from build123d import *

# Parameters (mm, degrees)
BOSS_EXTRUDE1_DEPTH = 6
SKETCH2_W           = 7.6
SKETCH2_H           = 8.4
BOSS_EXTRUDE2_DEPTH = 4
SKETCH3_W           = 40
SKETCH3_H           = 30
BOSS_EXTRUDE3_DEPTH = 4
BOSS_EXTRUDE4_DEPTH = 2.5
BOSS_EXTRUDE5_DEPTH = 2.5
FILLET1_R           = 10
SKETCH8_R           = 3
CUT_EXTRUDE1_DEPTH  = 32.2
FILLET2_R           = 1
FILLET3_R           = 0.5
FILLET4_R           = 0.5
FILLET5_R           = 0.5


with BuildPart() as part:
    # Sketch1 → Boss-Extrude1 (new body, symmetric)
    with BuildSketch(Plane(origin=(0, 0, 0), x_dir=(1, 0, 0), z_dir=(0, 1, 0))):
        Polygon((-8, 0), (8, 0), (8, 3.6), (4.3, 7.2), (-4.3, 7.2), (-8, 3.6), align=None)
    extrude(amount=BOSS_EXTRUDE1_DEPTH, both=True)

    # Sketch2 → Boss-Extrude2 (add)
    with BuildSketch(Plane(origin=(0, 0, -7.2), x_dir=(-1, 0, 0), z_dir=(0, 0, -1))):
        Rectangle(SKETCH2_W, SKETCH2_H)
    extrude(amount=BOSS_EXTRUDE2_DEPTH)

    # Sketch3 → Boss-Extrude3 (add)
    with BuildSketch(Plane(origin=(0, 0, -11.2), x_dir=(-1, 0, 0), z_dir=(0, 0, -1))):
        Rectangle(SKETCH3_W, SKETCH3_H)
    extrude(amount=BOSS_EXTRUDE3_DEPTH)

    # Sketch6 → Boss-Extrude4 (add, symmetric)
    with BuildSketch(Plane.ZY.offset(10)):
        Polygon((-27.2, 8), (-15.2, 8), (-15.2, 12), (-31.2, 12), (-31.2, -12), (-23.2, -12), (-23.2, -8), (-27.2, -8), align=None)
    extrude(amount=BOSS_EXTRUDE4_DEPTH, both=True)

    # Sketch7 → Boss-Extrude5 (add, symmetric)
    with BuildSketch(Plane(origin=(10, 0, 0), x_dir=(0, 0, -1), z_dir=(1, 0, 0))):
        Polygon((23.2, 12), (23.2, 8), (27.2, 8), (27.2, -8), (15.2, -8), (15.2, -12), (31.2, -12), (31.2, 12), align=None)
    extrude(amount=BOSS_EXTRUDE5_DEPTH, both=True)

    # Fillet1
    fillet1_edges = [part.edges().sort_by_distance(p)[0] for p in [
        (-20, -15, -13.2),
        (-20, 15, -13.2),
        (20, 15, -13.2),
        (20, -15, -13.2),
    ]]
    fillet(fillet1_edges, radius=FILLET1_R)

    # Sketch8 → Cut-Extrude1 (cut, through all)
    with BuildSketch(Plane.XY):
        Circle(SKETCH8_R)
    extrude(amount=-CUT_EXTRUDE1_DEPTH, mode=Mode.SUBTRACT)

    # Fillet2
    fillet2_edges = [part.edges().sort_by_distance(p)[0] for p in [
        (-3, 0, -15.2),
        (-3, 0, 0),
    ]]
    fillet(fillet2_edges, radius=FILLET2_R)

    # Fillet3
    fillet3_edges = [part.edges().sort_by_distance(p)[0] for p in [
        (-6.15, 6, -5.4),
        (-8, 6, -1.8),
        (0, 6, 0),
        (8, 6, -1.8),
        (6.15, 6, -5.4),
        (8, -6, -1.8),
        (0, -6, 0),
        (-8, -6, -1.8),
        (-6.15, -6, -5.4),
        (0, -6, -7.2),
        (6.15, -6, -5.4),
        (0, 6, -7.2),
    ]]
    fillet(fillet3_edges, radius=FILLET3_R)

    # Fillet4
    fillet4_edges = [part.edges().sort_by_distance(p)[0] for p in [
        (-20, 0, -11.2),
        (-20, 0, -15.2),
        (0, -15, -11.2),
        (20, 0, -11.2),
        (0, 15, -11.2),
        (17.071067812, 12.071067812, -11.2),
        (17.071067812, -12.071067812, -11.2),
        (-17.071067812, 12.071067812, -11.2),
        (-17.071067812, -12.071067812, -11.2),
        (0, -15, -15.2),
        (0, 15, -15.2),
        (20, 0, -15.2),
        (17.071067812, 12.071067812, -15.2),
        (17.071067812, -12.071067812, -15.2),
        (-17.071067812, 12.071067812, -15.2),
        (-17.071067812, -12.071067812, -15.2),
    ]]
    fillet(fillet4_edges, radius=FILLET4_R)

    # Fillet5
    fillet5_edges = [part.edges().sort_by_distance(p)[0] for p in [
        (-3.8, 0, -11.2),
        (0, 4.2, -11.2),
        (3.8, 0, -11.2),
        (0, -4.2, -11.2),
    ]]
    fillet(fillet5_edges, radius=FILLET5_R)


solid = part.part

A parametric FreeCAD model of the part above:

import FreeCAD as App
import Part
import Sketcher

V = App.Vector
Q = App.Units.Quantity


def edges_at(feature, points):
    """Names of the edges that pass closest to the given points."""
    edges = feature.Shape.Edges
    near = lambda p: min(range(len(edges)), key=lambda i: edges[i].distToShape(Part.Vertex(*p))[0])
    return sorted({f"Edge{near(p) + 1}" for p in points})


def add_polygon(sketch, points):
    """Adds a closed chain of lines whose ends are joined by coincident constraints."""
    first, n = sketch.GeometryCount, len(points)
    for a, b in zip(points, points[1:] + points[:1]):
        sketch.addGeometry(Part.LineSegment(App.Vector(*a, 0), App.Vector(*b, 0)), False)
    for i in range(n):
        sketch.addConstraint(Sketcher.Constraint("Coincident", first + i, 2, first + (i + 1) % n, 1))

doc = App.newDocument("Part")
body = doc.addObject("PartDesign::Body", "Body")

# Sketch on XZ plane
sketch1 = body.newObject("Sketcher::SketchObject", "Sketch")
sketch1.AttachmentSupport = (doc.getObject("XZ_Plane"), [""])
sketch1.MapMode = "FlatFace"
add_polygon(sketch1, [(-8, 0), (8, 0), (8, -3.6), (4.3, -7.2), (-4.3, -7.2), (-8, -3.6)])  # lines 0-5
sketch1.addConstraint([
    Sketcher.Constraint("Horizontal", 0),
    Sketcher.Constraint("Vertical", 1),
    Sketcher.Constraint("Horizontal", 3),
    Sketcher.Constraint("Vertical", 5),
    Sketcher.Constraint("Symmetric", 0, 2, 5, 2, -1, 1),
    Sketcher.Constraint("Horizontal", 1, 2, 4, 2),
    Sketcher.Constraint("Equal", 2, 4),
    Sketcher.Constraint("DistanceX", 0, 1, 0, 2, Q("16 mm")),
    Sketcher.Constraint("DistanceX", 3, 2, 3, 1, Q("8.6 mm")),
    Sketcher.Constraint("DistanceY", 1, 2, 1, 1, Q("3.6 mm")),
    Sketcher.Constraint("DistanceY", 2, 2, -1, 1, Q("7.2 mm")),
])
pad1 = body.newObject("PartDesign::Pad", "Pad")
pad1.Profile = sketch1
pad1.Length = 12
pad1.Midplane = True

# Sketch on XY plane
sketch2 = body.newObject("Sketcher::SketchObject", "Sketch001")
sketch2.AttachmentSupport = (doc.getObject("XY_Plane"), [""])
sketch2.MapMode = "FlatFace"
sketch2.AttachmentOffset = App.Placement(V(0, 0, -7.2), App.Rotation())
add_polygon(sketch2, [(4, 4), (4, -4), (-4, -4), (-4, 4)])  # lines 0-3
sketch2.addConstraint([
    Sketcher.Constraint("Vertical", 0),
    Sketcher.Constraint("Horizontal", 1),
    Sketcher.Constraint("Vertical", 2),
    Sketcher.Constraint("Horizontal", 3),
    Sketcher.Constraint("Symmetric", 0, 2, 2, 2, -1, 1),
    Sketcher.Constraint("DistanceX", 1, 2, 1, 1, Q("7.6 mm")),
    Sketcher.Constraint("DistanceY", 0, 2, 0, 1, Q("8.4 mm")),
])
pad2 = body.newObject("PartDesign::Pad", "Pad001")
pad2.Profile = sketch2
pad2.Length = 4
pad2.Reversed = True

# Sketch on XY plane
sketch3 = body.newObject("Sketcher::SketchObject", "Sketch002")
sketch3.AttachmentSupport = (doc.getObject("XY_Plane"), [""])
sketch3.MapMode = "FlatFace"
sketch3.AttachmentOffset = App.Placement(V(0, 0, -11.2), App.Rotation())
add_polygon(sketch3, [(20, 15), (20, -15), (-20, -15), (-20, 15)])  # lines 0-3
sketch3.addConstraint([
    Sketcher.Constraint("Vertical", 0),
    Sketcher.Constraint("Horizontal", 1),
    Sketcher.Constraint("Vertical", 2),
    Sketcher.Constraint("Horizontal", 3),
    Sketcher.Constraint("Symmetric", 0, 2, 2, 2, -1, 1),
    Sketcher.Constraint("DistanceX", 1, 2, 1, 1, Q("40 mm")),
    Sketcher.Constraint("DistanceY", 0, 2, 0, 1, Q("30 mm")),
])
pad3 = body.newObject("PartDesign::Pad", "Pad002")
pad3.Profile = sketch3
pad3.Length = 4
pad3.Reversed = True

# Sketch on YZ plane
sketch4 = body.newObject("Sketcher::SketchObject", "Sketch003")
sketch4.AttachmentSupport = (doc.getObject("YZ_Plane"), [""])
sketch4.MapMode = "FlatFace"
sketch4.AttachmentOffset = App.Placement(V(0, 0, -10), App.Rotation())
add_polygon(sketch4, [(8, -27.2), (8, -15.2), (12, -15.2), (12, -31.2), (-12, -31.2), (-12, -23.2), (-8, -23.2), (-8, -27.2)])  # lines 0-7
sketch4.addConstraint([
    Sketcher.Constraint("Vertical", 0),
    Sketcher.Constraint("Horizontal", 1),
    Sketcher.Constraint("Vertical", 2),
    Sketcher.Constraint("Horizontal", 3),
    Sketcher.Constraint("Vertical", 4),
    Sketcher.Constraint("Horizontal", 5),
    Sketcher.Constraint("Vertical", 6),
    Sketcher.Constraint("Horizontal", 7),
    Sketcher.Constraint("Equal", 1, 5),
    Sketcher.Constraint("Equal", 7, 2),
    Sketcher.Constraint("Equal", 5, 6),
    Sketcher.Constraint("DistanceX", 1, 1, 1, 2, Q("4 mm")),
    Sketcher.Constraint("DistanceX", 3, 2, 3, 1, Q("24 mm")),
    Sketcher.Constraint("DistanceY", 0, 1, 0, 2, Q("12 mm")),
    Sketcher.Constraint("DistanceX", -1, 1, 0, 2, Q("8 mm")),
    Sketcher.Constraint("DistanceY", 0, 2, -1, 1, Q("15.2 mm")),
])
pad4 = body.newObject("PartDesign::Pad", "Pad003")
pad4.Profile = sketch4
pad4.Length = 5
pad4.Midplane = True

# Sketch on YZ plane
sketch5 = body.newObject("Sketcher::SketchObject", "Sketch004")
sketch5.AttachmentSupport = (doc.getObject("YZ_Plane"), [""])
sketch5.MapMode = "FlatFace"
sketch5.AttachmentOffset = App.Placement(V(0, 0, 10), App.Rotation())
add_polygon(sketch5, [(12, -23.2), (8, -23.2), (8, -27.2), (-8, -27.2), (-8, -15.2), (-12, -15.2), (-12, -31.2), (12, -31.2)])  # lines 0-7
sketch5.addConstraint([
    Sketcher.Constraint("Horizontal", 0),
    Sketcher.Constraint("Vertical", 1),
    Sketcher.Constraint("Horizontal", 2),
    Sketcher.Constraint("Vertical", 3),
    Sketcher.Constraint("Horizontal", 4),
    Sketcher.Constraint("Vertical", 5),
    Sketcher.Constraint("Horizontal", 6),
    Sketcher.Constraint("Vertical", 7),
    Sketcher.Constraint("Equal", 0, 4),
    Sketcher.Constraint("Equal", 4, 1),
    Sketcher.Constraint("Equal", 2, 5),
    Sketcher.Constraint("DistanceX", 0, 2, 0, 1, Q("4 mm")),
    Sketcher.Constraint("DistanceX", 2, 2, 2, 1, Q("16 mm")),
    Sketcher.Constraint("DistanceY", 3, 1, 3, 2, Q("12 mm")),
    Sketcher.Constraint("DistanceX", -1, 1, 0, 2, Q("8 mm")),
    Sketcher.Constraint("DistanceY", 0, 2, -1, 1, Q("23.2 mm")),
])
pad5 = body.newObject("PartDesign::Pad", "Pad004")
pad5.Profile = sketch5
pad5.Length = 5
pad5.Midplane = True
doc.recompute()

fillet = body.newObject("PartDesign::Fillet", "Fillet")
fillet.Base = (pad5, edges_at(pad5, [
    (-20, -15, -13.2),
    (-20, 15, -13.2),
    (20, 15, -13.2),
    (20, -15, -13.2),
]))
fillet.Radius = 10

# Sketch on XY plane
sketch6 = body.newObject("Sketcher::SketchObject", "Sketch005")
sketch6.AttachmentSupport = (doc.getObject("XY_Plane"), [""])
sketch6.MapMode = "FlatFace"
sketch6.addGeometry(Part.Circle(V(0, 0, 0), V(0, 0, 1), 3), False)
sketch6.addConstraint([
    Sketcher.Constraint("Coincident", 0, 3, -1, 1),
    Sketcher.Constraint("Diameter", 0, Q("6 mm")),
])
pocket1 = body.newObject("PartDesign::Pocket", "Pocket")
pocket1.Profile = sketch6
pocket1.Type = "ThroughAll"
doc.recompute()

fillet2 = body.newObject("PartDesign::Fillet", "Fillet001")
fillet2.Base = (pocket1, edges_at(pocket1, [(-3, 0, -15.2), (-3, 0, 0)]))
fillet2.Radius = 1
doc.recompute()

fillet3 = body.newObject("PartDesign::Fillet", "Fillet002")
fillet3.Base = (fillet2, edges_at(fillet2, [
    (-6.15, 6, -5.4),
    (-8, 6, -1.8),
    (0, 6, 0),
    (8, 6, -1.8),
    (6.15, 6, -5.4),
    (8, -6, -1.8),
    (0, -6, 0),
    (-8, -6, -1.8),
    (-6.15, -6, -5.4),
    (0, -6, -7.2),
    (6.15, -6, -5.4),
    (0, 6, -7.2),
]))
fillet3.Radius = 0.5
doc.recompute()

fillet4 = body.newObject("PartDesign::Fillet", "Fillet003")
fillet4.Base = (fillet3, edges_at(fillet3, [
    (-20, 0, -11.2),
    (-20, 0, -15.2),
    (0, -15, -11.2),
    (20, 0, -11.2),
    (0, 15, -11.2),
    (17.071, 12.071, -11.2),
    (17.071, -12.071, -11.2),
    (-17.071, 12.071, -11.2),
    (-17.071, -12.071, -11.2),
    (0, -15, -15.2),
    (0, 15, -15.2),
    (20, 0, -15.2),
    (17.071, 12.071, -15.2),
    (17.071, -12.071, -15.2),
    (-17.071, 12.071, -15.2),
    (-17.071, -12.071, -15.2),
]))
fillet4.Radius = 0.5
doc.recompute()

fillet5 = body.newObject("PartDesign::Fillet", "Fillet004")
fillet5.Base = (fillet4, edges_at(fillet4, [
    (-3.8, 0, -11.2),
    (0, 4.2, -11.2),
    (3.8, 0, -11.2),
    (0, -4.2, -11.2),
]))
fillet5.Radius = 0.5

doc.recompute()
